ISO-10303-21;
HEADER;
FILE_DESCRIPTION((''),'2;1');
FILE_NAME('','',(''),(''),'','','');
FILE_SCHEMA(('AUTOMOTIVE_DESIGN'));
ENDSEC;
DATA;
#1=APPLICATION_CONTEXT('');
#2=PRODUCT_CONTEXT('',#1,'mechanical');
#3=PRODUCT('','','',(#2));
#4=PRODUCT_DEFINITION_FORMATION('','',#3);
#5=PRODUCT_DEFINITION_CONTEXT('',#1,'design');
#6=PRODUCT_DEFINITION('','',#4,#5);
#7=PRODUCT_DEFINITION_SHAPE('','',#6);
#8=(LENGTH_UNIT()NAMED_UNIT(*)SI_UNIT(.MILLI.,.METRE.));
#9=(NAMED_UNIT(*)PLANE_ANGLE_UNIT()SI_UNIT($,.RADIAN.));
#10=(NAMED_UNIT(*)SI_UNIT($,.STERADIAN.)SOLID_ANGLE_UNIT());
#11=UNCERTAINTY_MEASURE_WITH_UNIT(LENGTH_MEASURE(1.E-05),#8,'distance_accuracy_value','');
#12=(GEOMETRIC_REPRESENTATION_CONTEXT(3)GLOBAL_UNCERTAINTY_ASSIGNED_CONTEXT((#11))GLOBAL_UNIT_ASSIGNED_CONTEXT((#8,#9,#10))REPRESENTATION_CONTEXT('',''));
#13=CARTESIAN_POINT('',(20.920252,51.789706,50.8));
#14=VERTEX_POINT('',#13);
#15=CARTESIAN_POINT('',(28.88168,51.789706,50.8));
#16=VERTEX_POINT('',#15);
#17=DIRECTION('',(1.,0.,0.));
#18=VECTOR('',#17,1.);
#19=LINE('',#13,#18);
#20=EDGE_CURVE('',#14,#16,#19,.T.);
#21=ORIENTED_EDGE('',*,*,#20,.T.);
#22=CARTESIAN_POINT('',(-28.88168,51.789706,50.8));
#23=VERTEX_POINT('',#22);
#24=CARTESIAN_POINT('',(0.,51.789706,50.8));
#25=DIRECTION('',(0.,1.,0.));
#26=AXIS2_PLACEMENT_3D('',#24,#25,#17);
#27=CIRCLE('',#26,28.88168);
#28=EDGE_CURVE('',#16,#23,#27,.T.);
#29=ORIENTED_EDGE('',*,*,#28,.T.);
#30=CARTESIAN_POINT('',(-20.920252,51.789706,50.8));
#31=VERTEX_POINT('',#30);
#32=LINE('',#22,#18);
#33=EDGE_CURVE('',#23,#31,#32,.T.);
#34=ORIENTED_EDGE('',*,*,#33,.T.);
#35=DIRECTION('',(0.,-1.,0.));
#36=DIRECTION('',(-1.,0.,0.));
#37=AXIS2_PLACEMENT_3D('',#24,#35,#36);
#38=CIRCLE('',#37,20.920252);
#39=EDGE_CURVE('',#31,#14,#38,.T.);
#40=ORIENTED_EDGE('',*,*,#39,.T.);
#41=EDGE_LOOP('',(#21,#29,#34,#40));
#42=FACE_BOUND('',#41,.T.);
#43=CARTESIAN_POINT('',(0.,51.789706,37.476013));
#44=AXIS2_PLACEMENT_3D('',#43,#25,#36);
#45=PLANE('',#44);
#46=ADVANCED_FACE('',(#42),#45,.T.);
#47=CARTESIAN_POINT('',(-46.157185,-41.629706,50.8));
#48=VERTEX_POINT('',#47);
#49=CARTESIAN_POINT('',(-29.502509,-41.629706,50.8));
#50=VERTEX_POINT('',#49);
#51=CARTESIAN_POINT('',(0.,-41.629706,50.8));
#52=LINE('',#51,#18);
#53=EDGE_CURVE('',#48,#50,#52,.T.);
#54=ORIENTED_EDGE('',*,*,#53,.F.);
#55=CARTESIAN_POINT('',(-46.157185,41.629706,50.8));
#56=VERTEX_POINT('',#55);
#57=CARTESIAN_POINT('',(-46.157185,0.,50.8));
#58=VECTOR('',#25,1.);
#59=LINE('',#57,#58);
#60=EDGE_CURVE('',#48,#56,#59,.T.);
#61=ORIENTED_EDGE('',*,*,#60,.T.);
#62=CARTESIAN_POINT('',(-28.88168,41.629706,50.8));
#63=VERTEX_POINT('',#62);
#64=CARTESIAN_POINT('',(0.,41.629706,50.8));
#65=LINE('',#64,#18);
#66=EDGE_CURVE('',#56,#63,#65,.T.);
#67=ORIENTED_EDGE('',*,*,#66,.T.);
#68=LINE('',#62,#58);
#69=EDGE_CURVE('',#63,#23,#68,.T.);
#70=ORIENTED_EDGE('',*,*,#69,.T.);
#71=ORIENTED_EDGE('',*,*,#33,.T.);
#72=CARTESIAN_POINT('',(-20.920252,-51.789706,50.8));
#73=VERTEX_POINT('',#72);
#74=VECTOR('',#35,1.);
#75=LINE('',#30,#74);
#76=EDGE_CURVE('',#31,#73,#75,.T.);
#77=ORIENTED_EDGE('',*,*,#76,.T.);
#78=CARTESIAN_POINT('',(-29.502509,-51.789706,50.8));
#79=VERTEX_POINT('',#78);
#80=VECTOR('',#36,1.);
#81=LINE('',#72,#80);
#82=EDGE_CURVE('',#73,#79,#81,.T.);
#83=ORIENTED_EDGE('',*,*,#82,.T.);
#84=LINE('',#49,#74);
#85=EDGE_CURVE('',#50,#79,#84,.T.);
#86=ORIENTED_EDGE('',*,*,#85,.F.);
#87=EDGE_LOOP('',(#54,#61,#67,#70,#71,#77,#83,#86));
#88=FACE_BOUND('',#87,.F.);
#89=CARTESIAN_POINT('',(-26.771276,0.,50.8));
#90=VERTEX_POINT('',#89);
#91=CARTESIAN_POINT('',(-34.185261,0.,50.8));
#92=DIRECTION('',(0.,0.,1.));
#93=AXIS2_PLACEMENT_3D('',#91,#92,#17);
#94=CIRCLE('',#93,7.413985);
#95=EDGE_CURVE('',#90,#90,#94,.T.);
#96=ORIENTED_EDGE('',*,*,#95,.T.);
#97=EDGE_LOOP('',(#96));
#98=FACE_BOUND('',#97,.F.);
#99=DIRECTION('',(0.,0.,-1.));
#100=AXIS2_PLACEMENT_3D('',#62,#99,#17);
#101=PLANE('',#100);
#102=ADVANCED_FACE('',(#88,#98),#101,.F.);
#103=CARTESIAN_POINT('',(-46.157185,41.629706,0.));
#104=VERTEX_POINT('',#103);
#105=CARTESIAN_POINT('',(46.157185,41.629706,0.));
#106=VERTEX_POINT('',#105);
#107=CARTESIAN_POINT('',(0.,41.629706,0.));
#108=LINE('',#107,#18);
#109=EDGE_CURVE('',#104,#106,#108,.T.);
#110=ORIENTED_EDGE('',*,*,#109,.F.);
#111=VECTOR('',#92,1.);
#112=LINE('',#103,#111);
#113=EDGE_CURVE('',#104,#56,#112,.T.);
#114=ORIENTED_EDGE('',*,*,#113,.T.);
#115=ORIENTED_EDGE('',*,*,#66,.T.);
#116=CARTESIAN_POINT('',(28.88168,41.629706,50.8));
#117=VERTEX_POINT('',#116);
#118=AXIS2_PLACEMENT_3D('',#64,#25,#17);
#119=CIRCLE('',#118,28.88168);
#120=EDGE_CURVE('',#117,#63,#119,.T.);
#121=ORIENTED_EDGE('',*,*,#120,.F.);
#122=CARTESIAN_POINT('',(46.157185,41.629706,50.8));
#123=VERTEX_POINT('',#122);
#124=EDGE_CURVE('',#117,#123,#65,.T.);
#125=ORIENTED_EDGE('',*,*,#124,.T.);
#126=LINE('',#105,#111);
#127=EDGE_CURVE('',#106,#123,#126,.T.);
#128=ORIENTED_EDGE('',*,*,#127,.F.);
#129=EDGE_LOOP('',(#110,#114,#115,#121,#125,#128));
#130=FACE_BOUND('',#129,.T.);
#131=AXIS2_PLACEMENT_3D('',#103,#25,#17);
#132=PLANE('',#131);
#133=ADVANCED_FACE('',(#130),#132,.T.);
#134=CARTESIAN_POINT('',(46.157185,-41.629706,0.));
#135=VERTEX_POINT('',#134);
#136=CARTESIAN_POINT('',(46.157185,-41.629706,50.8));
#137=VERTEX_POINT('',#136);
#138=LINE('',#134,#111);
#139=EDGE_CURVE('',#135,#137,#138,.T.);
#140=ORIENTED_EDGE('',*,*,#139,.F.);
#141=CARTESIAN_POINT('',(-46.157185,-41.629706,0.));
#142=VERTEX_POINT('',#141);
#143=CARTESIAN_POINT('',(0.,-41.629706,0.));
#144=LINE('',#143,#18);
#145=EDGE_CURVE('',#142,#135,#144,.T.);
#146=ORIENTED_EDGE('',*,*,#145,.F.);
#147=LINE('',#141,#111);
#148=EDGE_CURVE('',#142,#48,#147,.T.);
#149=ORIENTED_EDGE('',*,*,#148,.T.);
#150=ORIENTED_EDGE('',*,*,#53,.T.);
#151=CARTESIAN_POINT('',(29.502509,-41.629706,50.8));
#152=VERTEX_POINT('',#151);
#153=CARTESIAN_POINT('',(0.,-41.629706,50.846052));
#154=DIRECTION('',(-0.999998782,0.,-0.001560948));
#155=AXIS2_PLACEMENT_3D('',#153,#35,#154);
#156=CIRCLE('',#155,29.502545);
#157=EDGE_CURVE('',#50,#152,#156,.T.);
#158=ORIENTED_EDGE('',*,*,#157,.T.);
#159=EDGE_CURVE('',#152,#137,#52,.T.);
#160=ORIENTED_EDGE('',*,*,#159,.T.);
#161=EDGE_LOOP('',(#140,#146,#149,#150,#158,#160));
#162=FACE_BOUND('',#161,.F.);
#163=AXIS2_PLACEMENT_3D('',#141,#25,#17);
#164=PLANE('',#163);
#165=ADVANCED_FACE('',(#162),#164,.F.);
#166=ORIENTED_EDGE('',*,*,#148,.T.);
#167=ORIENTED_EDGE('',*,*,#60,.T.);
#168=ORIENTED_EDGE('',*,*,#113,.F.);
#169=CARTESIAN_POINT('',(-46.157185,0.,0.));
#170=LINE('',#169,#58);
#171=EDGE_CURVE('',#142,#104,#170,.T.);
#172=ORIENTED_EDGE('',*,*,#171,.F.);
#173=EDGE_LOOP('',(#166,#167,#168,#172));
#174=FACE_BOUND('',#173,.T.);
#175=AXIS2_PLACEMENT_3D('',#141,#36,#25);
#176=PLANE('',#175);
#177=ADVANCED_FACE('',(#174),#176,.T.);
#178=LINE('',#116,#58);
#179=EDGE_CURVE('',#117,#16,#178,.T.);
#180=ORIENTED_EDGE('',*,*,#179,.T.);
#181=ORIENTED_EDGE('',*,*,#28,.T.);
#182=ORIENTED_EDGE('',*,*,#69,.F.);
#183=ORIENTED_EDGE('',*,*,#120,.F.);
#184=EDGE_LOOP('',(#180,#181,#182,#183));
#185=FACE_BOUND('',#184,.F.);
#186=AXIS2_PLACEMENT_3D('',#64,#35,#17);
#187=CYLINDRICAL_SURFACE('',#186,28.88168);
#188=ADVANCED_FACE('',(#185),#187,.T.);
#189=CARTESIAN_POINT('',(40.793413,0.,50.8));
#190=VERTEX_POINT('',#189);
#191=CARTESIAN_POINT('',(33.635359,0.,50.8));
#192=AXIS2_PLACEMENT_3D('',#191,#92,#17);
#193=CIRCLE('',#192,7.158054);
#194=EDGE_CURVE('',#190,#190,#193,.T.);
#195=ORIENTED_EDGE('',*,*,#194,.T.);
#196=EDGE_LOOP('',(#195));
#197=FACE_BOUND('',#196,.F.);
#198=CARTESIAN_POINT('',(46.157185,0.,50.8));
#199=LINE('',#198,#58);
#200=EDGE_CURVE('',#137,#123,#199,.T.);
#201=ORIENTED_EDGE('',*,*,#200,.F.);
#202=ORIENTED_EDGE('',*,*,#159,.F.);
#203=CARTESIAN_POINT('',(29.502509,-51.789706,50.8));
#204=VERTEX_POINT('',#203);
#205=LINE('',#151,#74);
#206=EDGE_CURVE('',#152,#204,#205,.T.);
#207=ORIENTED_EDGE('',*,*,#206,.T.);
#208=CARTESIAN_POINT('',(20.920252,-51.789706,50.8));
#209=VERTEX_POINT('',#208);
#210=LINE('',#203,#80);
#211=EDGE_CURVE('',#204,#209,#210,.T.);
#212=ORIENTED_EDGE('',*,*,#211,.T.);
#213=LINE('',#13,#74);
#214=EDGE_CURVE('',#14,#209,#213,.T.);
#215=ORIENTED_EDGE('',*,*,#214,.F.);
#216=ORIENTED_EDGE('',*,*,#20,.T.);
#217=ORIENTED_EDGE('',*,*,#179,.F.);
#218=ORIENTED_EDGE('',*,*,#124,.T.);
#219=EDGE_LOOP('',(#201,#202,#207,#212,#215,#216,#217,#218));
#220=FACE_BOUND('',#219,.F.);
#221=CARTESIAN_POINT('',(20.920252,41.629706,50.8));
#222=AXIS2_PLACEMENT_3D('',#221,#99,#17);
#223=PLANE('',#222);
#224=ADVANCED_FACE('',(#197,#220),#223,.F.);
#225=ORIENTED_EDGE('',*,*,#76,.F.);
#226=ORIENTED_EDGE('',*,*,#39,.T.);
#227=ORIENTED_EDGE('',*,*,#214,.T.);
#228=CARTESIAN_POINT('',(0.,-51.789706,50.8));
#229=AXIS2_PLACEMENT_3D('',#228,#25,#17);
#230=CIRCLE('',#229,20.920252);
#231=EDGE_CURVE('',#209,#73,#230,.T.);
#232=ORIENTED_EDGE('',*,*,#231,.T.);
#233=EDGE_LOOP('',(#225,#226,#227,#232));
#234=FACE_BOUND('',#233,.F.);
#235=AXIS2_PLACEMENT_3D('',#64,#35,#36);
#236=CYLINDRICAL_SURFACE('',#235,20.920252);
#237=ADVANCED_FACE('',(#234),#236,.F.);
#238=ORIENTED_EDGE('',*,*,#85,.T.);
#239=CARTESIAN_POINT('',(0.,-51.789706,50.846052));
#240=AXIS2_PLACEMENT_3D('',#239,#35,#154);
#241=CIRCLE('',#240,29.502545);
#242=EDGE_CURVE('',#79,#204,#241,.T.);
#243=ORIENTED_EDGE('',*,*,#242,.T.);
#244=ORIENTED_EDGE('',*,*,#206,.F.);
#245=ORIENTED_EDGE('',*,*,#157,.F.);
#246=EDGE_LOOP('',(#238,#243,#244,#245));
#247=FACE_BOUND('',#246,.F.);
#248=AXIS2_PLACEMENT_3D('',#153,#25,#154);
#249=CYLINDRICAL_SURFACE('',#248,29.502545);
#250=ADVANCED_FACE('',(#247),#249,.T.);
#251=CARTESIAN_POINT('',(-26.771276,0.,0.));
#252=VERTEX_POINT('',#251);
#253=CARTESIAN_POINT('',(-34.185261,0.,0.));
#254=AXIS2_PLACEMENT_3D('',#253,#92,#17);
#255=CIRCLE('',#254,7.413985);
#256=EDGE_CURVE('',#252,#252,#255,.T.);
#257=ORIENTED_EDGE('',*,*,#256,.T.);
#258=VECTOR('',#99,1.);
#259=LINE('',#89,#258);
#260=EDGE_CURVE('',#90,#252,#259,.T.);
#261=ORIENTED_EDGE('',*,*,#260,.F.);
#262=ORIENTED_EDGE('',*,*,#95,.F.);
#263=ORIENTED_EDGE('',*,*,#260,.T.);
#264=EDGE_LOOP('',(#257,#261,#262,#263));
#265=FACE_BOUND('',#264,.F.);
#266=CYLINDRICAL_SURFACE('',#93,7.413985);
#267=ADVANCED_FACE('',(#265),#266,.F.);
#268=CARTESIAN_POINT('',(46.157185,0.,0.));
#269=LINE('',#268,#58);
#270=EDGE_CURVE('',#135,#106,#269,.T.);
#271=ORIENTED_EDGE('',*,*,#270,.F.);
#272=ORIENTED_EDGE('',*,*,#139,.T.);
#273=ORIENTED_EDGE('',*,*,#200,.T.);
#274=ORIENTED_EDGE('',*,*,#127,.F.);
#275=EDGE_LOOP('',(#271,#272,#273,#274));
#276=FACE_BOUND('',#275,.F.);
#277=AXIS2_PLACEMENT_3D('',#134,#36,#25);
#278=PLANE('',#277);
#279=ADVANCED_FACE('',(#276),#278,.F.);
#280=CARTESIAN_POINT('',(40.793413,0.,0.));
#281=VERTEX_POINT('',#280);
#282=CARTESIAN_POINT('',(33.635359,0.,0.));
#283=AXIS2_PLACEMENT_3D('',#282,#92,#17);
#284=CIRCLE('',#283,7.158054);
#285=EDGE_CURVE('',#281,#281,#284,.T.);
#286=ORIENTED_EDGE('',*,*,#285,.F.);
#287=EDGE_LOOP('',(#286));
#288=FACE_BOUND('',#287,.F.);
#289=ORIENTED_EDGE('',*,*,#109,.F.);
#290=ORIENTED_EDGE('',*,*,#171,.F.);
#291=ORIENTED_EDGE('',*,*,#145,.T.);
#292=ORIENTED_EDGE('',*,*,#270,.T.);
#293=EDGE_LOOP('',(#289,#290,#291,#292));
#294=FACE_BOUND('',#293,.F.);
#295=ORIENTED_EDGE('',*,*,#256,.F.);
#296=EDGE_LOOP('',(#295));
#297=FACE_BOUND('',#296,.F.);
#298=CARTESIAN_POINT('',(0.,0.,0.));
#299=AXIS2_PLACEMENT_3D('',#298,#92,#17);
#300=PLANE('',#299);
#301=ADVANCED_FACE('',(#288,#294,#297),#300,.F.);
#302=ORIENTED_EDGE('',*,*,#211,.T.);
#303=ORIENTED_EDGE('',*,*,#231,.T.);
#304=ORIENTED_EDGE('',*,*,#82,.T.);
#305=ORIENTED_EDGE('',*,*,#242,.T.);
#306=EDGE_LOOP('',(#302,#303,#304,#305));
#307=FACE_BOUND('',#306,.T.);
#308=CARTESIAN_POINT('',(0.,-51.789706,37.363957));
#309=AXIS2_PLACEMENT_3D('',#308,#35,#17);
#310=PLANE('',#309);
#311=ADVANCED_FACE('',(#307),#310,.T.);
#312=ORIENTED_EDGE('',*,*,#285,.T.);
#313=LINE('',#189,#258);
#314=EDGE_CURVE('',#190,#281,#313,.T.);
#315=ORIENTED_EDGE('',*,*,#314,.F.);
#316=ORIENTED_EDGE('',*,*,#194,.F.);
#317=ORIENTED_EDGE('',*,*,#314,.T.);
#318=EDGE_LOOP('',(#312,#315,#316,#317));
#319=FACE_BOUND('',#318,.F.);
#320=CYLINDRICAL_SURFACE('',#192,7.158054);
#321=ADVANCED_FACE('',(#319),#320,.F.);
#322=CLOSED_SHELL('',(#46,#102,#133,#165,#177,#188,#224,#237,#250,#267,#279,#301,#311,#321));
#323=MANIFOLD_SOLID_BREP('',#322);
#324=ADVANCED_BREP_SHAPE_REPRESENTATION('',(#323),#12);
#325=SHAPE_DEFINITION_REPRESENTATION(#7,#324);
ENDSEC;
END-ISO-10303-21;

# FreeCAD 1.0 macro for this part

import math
import FreeCAD as App
import Part
import Sketcher
Q = App.Units.Quantity


def add_polygon(sketch, points):
    """Adds a closed chain of lines whose ends are joined by coincident constraints."""
    first, n = sketch.GeometryCount, len(points)
    for a, b in zip(points, points[1:] + points[:1]):
        sketch.addGeometry(Part.LineSegment(App.Vector(*a, 0), App.Vector(*b, 0)), False)
    for i in range(n):
        sketch.addConstraint(Sketcher.Constraint("Coincident", first + i, 2, first + (i + 1) % n, 1))

doc = App.newDocument("Part")
body = doc.addObject("PartDesign::Body", "Body")

sketch1 = body.newObject("Sketcher::SketchObject", "Sketch")
sketch1.AttachmentSupport = (doc.getObject("XY_Plane"), [""])
sketch1.MapMode = "FlatFace"
add_polygon(sketch1, [(-46.157185, 41.629706), (-46.157185, -41.629706), (46.157185, -41.629706), (46.157185, 41.629706)])
sketch1.addConstraint(Sketcher.Constraint("Vertical", 0))
sketch1.addConstraint(Sketcher.Constraint("Horizontal", 1))
sketch1.addConstraint(Sketcher.Constraint("Vertical", 2))
sketch1.addConstraint(Sketcher.Constraint("Horizontal", 3))
sketch1.addConstraint(Sketcher.Constraint("Symmetric", 0, 2, 2, 2, -1, 1))
sketch1.addConstraint(Sketcher.Constraint("DistanceX", 1, 1, 1, 2, 92.31437))
sketch1.addConstraint(Sketcher.Constraint("DistanceY", 0, 2, 0, 1, 83.259412))
pad1 = body.newObject("PartDesign::Pad", "Pad")
pad1.Profile = sketch1
pad1.Length = Q("2 in")

sketch2 = body.newObject("Sketcher::SketchObject", "Sketch001")
sketch2.AttachmentSupport = (doc.getObject("XZ_Plane"), [""])
sketch2.MapMode = "FlatFace"
sketch2.AttachmentOffset = App.Placement(App.Vector(0, 0, 41.629706), App.Rotation())
sketch2.addGeometry(Part.LineSegment(App.Vector(20.920252, 50.8, 0), App.Vector(-20.920252, 50.8, 0)), False)
sketch2.addGeometry(Part.ArcOfCircle(Part.Circle(App.Vector(0, 50.8, 0), App.Vector(0, 0, 1), 20.920252), math.radians(180), math.radians(360)), False)
sketch2.addConstraint(Sketcher.Constraint("Coincident", 0, 1, 1, 2))
sketch2.addConstraint(Sketcher.Constraint("Coincident", 1, 1, 0, 2))
sketch2.addConstraint(Sketcher.Constraint("Horizontal", 0))
sketch2.addConstraint(Sketcher.Constraint("PointOnObject", 1, 3, -2))
sketch2.addConstraint(Sketcher.Constraint("Horizontal", 1, 3, 0, 1))
sketch2.addConstraint(Sketcher.Constraint("DistanceY", -1, 1, 1, 3, Q("2 in")))
sketch2.addConstraint(Sketcher.Constraint("Radius", 1, 20.920252))
pocket1 = body.newObject("PartDesign::Pocket", "Pocket")
pocket1.Profile = sketch2
pocket1.Length = Q("5 in")

sketch3 = body.newObject("Sketcher::SketchObject", "Sketch002")
sketch3.AttachmentSupport = (doc.getObject("XZ_Plane"), [""])
sketch3.MapMode = "FlatFace"
sketch3.AttachmentOffset = App.Placement(App.Vector(0, 0, 41.629706), App.Rotation())
sketch3.addGeometry(Part.LineSegment(App.Vector(-20.920252, 50.8, 0), App.Vector(-29.502509, 50.8, 0)), False)
sketch3.addGeometry(Part.ArcOfCircle(Part.Circle(App.Vector(0, 50.846052, 0), App.Vector(0, 0, 1), 29.502545), math.radians(-179.910564), math.radians(-0.089436)), False)
sketch3.addGeometry(Part.LineSegment(App.Vector(29.502509, 50.8, 0), App.Vector(20.920252, 50.8, 0)), False)
sketch3.addGeometry(Part.ArcOfCircle(Part.Circle(App.Vector(0, 50.8, 0), App.Vector(0, 0, 1), 20.920252), math.radians(180), math.radians(360)), False)
sketch3.addConstraint(Sketcher.Constraint("Coincident", 0, 2, 1, 1))
sketch3.addConstraint(Sketcher.Constraint("Coincident", 1, 2, 2, 1))
sketch3.addConstraint(Sketcher.Constraint("Coincident", 2, 2, 3, 2))
sketch3.addConstraint(Sketcher.Constraint("Coincident", 3, 1, 0, 1))
sketch3.addConstraint(Sketcher.Constraint("Horizontal", 0))
sketch3.addConstraint(Sketcher.Constraint("Horizontal", 2))
sketch3.addConstraint(Sketcher.Constraint("Symmetric", 0, 2, 1, 2, -2))
sketch3.addConstraint(Sketcher.Constraint("PointOnObject", 3, 3, -2))
sketch3.addConstraint(Sketcher.Constraint("Horizontal", 3, 3, 0, 2))
sketch3.addConstraint(Sketcher.Constraint("DistanceY", -1, 1, 3, 3, Q("2 in")))
sketch3.addConstraint(Sketcher.Constraint("Radius", 1, 29.502545))
sketch3.addConstraint(Sketcher.Constraint("Radius", 3, 20.920252))
sketch3.addConstraint(Sketcher.Constraint("DistanceY", -1, 1, 1, 3, 50.846052))
pad2 = body.newObject("PartDesign::Pad", "Pad001")
pad2.Profile = sketch3
pad2.Length = Q("0.4 in")

sketch4 = body.newObject("Sketcher::SketchObject", "Sketch003")
sketch4.AttachmentSupport = (doc.getObject("XZ_Plane"), [""])
sketch4.MapMode = "FlatFace"
sketch4.AttachmentOffset = App.Placement(App.Vector(0, 0, -41.629706), App.Rotation())
sketch4.addGeometry(Part.LineSegment(App.Vector(20.920252, 50.8, 0), App.Vector(28.88168, 50.8, 0)), False)
sketch4.addGeometry(Part.ArcOfCircle(Part.Circle(App.Vector(0, 50.8, 0), App.Vector(0, 0, 1), 28.88168), math.radians(180), math.radians(360)), False)
sketch4.addGeometry(Part.LineSegment(App.Vector(-28.88168, 50.8, 0), App.Vector(-20.920252, 50.8, 0)), False)
sketch4.addGeometry(Part.ArcOfCircle(Part.Circle(App.Vector(0, 50.8, 0), App.Vector(0, 0, 1), 20.920252), math.radians(180), math.radians(360)), False)
sketch4.addConstraint(Sketcher.Constraint("Coincident", 0, 2, 1, 2))
sketch4.addConstraint(Sketcher.Constraint("Coincident", 1, 1, 2, 1))
sketch4.addConstraint(Sketcher.Constraint("Coincident", 2, 2, 3, 1))
sketch4.addConstraint(Sketcher.Constraint("Coincident", 3, 2, 0, 1))
sketch4.addConstraint(Sketcher.Constraint("Horizontal", 0))
sketch4.addConstraint(Sketcher.Constraint("Horizontal", 2))
sketch4.addConstraint(Sketcher.Constraint("Coincident", 3, 3, 1, 3))
sketch4.addConstraint(Sketcher.Constraint("Symmetric", 0, 2, 1, 1, -2))
sketch4.addConstraint(Sketcher.Constraint("Horizontal", 3, 3, 0, 2))
sketch4.addConstraint(Sketcher.Constraint("DistanceY", -1, 1, 1, 3, Q("2 in")))
sketch4.addConstraint(Sketcher.Constraint("Radius", 1, 28.88168))
sketch4.addConstraint(Sketcher.Constraint("Radius", 3, 20.920252))
pad3 = body.newObject("PartDesign::Pad", "Pad002")
pad3.Profile = sketch4
pad3.Length = Q("0.4 in")
pad3.Reversed = True

sketch5 = body.newObject("Sketcher::SketchObject", "Sketch004")
sketch5.AttachmentSupport = (doc.getObject("XY_Plane"), [""])
sketch5.MapMode = "FlatFace"
sketch5.AttachmentOffset = App.Placement(App.Vector(0, 0, 2 * 25.4), App.Rotation())
sketch5.addGeometry(Part.Circle(App.Vector(33.635359, 0, 0), App.Vector(0, 0, 1), 7.158054), False)
sketch5.addGeometry(Part.Circle(App.Vector(-34.185261, 0, 0), App.Vector(0, 0, 1), 7.413985), False)
sketch5.addConstraint(Sketcher.Constraint("PointOnObject", 0, 3, -1))
sketch5.addConstraint(Sketcher.Constraint("PointOnObject", 1, 3, -1))
sketch5.addConstraint(Sketcher.Constraint("Diameter", 1, 14.82797))
sketch5.addConstraint(Sketcher.Constraint("Diameter", 0, 14.316108))
sketch5.addConstraint(Sketcher.Constraint("DistanceX", -1, 1, 0, 3, 33.635359))
sketch5.addConstraint(Sketcher.Constraint("DistanceX", 1, 3, -1, 1, 34.185261))
pocket2 = body.newObject("PartDesign::Pocket", "Pocket001")
pocket2.Profile = sketch5
pocket2.Length = Q("6 in")

doc.recompute()
